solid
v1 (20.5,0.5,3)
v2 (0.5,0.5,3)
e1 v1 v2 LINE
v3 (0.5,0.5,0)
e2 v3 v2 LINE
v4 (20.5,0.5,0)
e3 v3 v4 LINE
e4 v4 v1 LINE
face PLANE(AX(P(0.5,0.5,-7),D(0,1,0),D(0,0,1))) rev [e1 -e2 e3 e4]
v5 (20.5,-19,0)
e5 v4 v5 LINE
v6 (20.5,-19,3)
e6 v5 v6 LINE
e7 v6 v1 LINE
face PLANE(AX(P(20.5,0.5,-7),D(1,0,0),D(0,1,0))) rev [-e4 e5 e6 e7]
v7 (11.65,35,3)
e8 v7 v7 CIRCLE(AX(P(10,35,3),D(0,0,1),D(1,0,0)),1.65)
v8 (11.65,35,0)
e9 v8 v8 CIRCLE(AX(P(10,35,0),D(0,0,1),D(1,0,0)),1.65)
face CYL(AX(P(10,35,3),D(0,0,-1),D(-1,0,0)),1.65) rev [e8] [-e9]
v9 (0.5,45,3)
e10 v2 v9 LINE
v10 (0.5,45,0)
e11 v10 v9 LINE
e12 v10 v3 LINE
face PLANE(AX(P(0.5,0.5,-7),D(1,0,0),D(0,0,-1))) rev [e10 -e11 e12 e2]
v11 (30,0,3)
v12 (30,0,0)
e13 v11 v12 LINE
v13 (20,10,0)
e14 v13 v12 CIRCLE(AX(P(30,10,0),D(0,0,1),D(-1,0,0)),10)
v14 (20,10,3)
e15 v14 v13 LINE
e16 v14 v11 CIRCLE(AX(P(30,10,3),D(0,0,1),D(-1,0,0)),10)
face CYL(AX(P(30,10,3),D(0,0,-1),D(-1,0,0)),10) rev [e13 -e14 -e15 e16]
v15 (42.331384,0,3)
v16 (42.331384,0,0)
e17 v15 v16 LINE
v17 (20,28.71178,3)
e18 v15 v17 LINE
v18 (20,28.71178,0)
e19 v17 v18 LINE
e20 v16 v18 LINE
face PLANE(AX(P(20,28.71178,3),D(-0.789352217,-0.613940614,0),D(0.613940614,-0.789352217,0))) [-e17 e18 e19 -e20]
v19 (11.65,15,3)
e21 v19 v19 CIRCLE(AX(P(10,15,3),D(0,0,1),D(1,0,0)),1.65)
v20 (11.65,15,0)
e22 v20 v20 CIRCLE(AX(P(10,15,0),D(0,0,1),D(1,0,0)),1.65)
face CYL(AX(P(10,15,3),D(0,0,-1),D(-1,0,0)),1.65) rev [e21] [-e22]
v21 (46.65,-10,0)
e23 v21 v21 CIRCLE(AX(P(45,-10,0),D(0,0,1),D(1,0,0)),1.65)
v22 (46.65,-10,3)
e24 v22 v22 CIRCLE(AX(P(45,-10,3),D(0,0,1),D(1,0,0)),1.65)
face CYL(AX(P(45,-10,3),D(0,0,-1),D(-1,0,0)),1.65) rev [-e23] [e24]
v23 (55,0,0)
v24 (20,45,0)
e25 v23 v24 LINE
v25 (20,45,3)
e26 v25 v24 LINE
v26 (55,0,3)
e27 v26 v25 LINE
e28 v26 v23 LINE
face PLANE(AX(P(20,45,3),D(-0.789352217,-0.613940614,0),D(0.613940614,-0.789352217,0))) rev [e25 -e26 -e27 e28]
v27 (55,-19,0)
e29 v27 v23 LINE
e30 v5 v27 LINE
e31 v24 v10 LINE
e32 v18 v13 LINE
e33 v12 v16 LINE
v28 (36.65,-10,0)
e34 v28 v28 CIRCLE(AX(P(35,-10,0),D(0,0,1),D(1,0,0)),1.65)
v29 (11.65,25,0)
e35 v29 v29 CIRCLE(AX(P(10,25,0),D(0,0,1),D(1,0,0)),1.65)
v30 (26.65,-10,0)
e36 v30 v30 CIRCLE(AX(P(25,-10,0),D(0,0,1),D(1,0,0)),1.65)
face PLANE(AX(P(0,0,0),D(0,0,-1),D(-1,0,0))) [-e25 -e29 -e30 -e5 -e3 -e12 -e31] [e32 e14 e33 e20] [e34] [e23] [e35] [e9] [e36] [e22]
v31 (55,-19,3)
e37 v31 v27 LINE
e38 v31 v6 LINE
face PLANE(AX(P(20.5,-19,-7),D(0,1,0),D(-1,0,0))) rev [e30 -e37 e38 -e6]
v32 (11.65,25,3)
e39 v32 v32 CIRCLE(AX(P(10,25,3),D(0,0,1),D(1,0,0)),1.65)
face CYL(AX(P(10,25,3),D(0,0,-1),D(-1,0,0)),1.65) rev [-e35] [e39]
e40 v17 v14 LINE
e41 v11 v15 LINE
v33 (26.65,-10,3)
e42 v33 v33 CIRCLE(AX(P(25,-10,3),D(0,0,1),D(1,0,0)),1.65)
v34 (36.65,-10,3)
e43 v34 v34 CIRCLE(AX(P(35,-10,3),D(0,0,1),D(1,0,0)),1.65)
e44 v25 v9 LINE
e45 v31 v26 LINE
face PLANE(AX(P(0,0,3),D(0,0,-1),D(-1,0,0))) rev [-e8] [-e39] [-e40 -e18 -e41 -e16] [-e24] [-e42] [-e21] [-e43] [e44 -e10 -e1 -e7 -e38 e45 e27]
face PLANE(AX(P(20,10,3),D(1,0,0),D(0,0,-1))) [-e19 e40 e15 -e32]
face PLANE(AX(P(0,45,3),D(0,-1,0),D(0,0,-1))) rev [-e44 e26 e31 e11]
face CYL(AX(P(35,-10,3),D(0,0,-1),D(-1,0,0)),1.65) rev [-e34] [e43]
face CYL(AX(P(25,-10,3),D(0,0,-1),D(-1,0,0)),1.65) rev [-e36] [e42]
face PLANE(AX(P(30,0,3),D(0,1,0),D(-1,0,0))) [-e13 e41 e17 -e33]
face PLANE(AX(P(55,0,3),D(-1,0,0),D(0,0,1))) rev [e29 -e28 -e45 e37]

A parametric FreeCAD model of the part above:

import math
import FreeCAD as App
import Part
import Sketcher
from FreeCAD import Vector

doc = App.newDocument("Part")
body = doc.addObject("PartDesign::Body", "Body")

sketch1 = body.newObject("Sketcher::SketchObject", "Sketch")
sketch1.AttachmentSupport = (doc.getObject("XY_Plane"), [""])
sketch1.MapMode = "FlatFace"
sketch1.addGeometry([
    Part.LineSegment(Vector(0, 0, 0), Vector(20, 0, 0)),
    Part.LineSegment(Vector(20, 0, 0), Vector(20, -20, 0)),
    Part.LineSegment(Vector(20, -20, 0), Vector(55, -20, 0)),
    Part.LineSegment(Vector(55, -20, 0), Vector(55, 0, 0)),
    Part.LineSegment(Vector(55, 0, 0), Vector(20, 45, 0)),
    Part.LineSegment(Vector(20, 45, 0), Vector(0, 45, 0)),
    Part.LineSegment(Vector(0, 45, 0), Vector(0, 0, 0)),
    Part.Circle(Vector(25, -10, 0), Vector(0, 0, 1), 1.6),
    Part.Circle(Vector(35, -10, 0), Vector(0, 0, 1), 1.6),
    Part.Circle(Vector(45, -10, 0), Vector(0, 0, 1), 1.6),
    Part.Circle(Vector(10, 15, 0), Vector(0, 0, 1), 1.6),
    Part.Circle(Vector(10, 25, 0), Vector(0, 0, 1), 1.6),
    Part.Circle(Vector(10, 35, 0), Vector(0, 0, 1), 1.6),
    Part.ArcOfCircle(Part.Circle(Vector(30, 10, 0), Vector(0, 0, 1), 10), math.radians(180), math.radians(270)),
    Part.LineSegment(Vector(20, 10, 0), Vector(20, 28.7, 0)),
    Part.LineSegment(Vector(20, 28.7, 0), Vector(42.3, 0, 0)),
    Part.LineSegment(Vector(42.3, 0, 0), Vector(30, 0, 0)),
], False)
sketch1.addConstraint([
    Sketcher.Constraint("Coincident", 0, 2, 1, 1),
    Sketcher.Constraint("Coincident", 1, 2, 2, 1),
    Sketcher.Constraint("Coincident", 2, 2, 3, 1),
    Sketcher.Constraint("Coincident", 3, 2, 4, 1),
    Sketcher.Constraint("Coincident", 4, 2, 5, 1),
    Sketcher.Constraint("Coincident", 5, 2, 6, 1),
    Sketcher.Constraint("Coincident", 6, 2, 0, 1),
    Sketcher.Constraint("Tangent", 13, 1, 14, 1),
    Sketcher.Constraint("Coincident", 14, 2, 15, 1),
    Sketcher.Constraint("Coincident", 15, 2, 16, 1),
    Sketcher.Constraint("Tangent", 16, 2, 13, 2),
    Sketcher.Constraint("Horizontal", 0),
    Sketcher.Constraint("Vertical", 1),
    Sketcher.Constraint("Horizontal", 2),
    Sketcher.Constraint("Vertical", 3),
    Sketcher.Constraint("Horizontal", 5),
    Sketcher.Constraint("Vertical", 6),
    Sketcher.Constraint("Vertical", 14),
    Sketcher.Constraint("Horizontal", 16),
    Sketcher.Constraint("Coincident", 6, 2, -1, 1),
    Sketcher.Constraint("Equal", 7, 8),
    Sketcher.Constraint("Equal", 8, 9),
    Sketcher.Constraint("Equal", 9, 10),
    Sketcher.Constraint("Equal", 10, 11),
    Sketcher.Constraint("Equal", 11, 12),
    Sketcher.Constraint("PointOnObject", 3, 2, -1),
    Sketcher.Constraint("PointOnObject", 15, 2, -1),
    Sketcher.Constraint("Parallel", 4, 15),
    Sketcher.Constraint("Horizontal", 7, 3, 8, 3),
    Sketcher.Constraint("Horizontal", 8, 3, 9, 3),
    Sketcher.Constraint("Vertical", 10, 3, 11, 3),
    Sketcher.Constraint("Vertical", 11, 3, 12, 3),
    Sketcher.Constraint("Vertical", 1, 2, 4, 2),
    Sketcher.Constraint("Vertical", 4, 2, 13, 1),
    Sketcher.Constraint("Equal", 5, 1),
    Sketcher.Constraint("Radius", 13, 10.0),
    Sketcher.Constraint("Diameter", 7, 3.3),
    Sketcher.Constraint("DistanceX", 0, 1, 0, 2, 20.0),
    Sketcher.Constraint("DistanceX", 2, 1, 2, 2, 35.0),
    Sketcher.Constraint("DistanceY", 6, 2, 6, 1, 45.0),
    Sketcher.Constraint("DistanceX", -1, 1, 7, 3, 25.0),
    Sketcher.Constraint("DistanceY", 7, 3, -1, 1, 10.0),
    Sketcher.Constraint("DistanceX", -1, 1, 8, 3, 35.0),
    Sketcher.Constraint("DistanceX", -1, 1, 9, 3, 45.0),
    Sketcher.Constraint("DistanceX", -1, 1, 10, 3, 10.0),
    Sketcher.Constraint("DistanceY", -1, 1, 10, 3, 15.0),
    Sketcher.Constraint("DistanceY", -1, 1, 11, 3, 25.0),
    Sketcher.Constraint("DistanceY", -1, 1, 12, 3, 35.0),
    Sketcher.Constraint("DistanceY", 14, 1, 14, 2, 18.71178),
])
pad1 = body.newObject("PartDesign::Pad", "Pad")
pad1.Profile = sketch1
pad1.Length = 3

sketch2 = body.newObject("Sketcher::SketchObject", "Sketch001")
sketch2.AttachmentSupport = (doc.getObject("XY_Plane"), [""])
sketch2.MapMode = "FlatFace"
sketch2.AttachmentOffset = App.Placement(Vector(0, 0, 3), App.Rotation())
sketch2.addGeometry([
    Part.LineSegment(Vector(61, -19, 0), Vector(20, -19, 0)),
    Part.LineSegment(Vector(20, -19, 0), Vector(20, 0, 0)),
    Part.LineSegment(Vector(20, 0, 0), Vector(0, 0, 0)),
    Part.LineSegment(Vector(0, 0, 0), Vector(0, 47, 0)),
    Part.LineSegment(Vector(0, 47, 0), Vector(-6, 47, 0)),
    Part.LineSegment(Vector(-6, 47, 0), Vector(0, 0, 0)),
    Part.LineSegment(Vector(0, 0, 0), Vector(17, -24, 0)),
    Part.LineSegment(Vector(17, -24, 0), Vector(61, -25, 0)),
    Part.LineSegment(Vector(61, -25, 0), Vector(61, -19, 0)),
], False)
sketch2.addConstraint([
    Sketcher.Constraint("Coincident", 0, 2, 1, 1),
    Sketcher.Constraint("Coincident", 1, 2, 2, 1),
    Sketcher.Constraint("Coincident", 2, 2, 3, 1),
    Sketcher.Constraint("Coincident", 3, 2, 4, 1),
    Sketcher.Constraint("Coincident", 4, 2, 5, 1),
    Sketcher.Constraint("Coincident", 5, 2, 6, 1),
    Sketcher.Constraint("Coincident", 6, 2, 7, 1),
    Sketcher.Constraint("Coincident", 7, 2, 8, 1),
    Sketcher.Constraint("Coincident", 8, 2, 0, 1),
    Sketcher.Constraint("Horizontal", 0),
    Sketcher.Constraint("Vertical", 1),
    Sketcher.Constraint("Horizontal", 2),
    Sketcher.Constraint("Vertical", 3),
    Sketcher.Constraint("Vertical", 8),
    Sketcher.Constraint("Coincident", 5, 2, -1, 1),
    Sketcher.Constraint("DistanceX", 2, 2, 2, 1, 20.0),
    Sketcher.Constraint("DistanceY", 1, 1, 1, 2, 19.5),
    Sketcher.Constraint("DistanceY", 0, 2, -1, 1, 19.0),
    Sketcher.Constraint("DistanceX", -1, 1, 0, 2, 20.5),
    Sketcher.Constraint("Distance", 4, 6.39607),
    Sketcher.Constraint("Distance", 6, 28.91226),
    Sketcher.Constraint("Distance", 7, 44.851862),
    Sketcher.Constraint("DistanceX", 0, 2, 0, 1, 40.940344),
    Sketcher.Constraint("DistanceY", 3, 1, 3, 2, 46.926626),
    Sketcher.Constraint("DistanceY", 8, 1, 8, 2, 5.760517),
    Sketcher.Constraint("DistanceY", 4, 2, 3, 2, 0.758529),
])
pocket1 = body.newObject("PartDesign::Pocket", "Pocket")
pocket1.Profile = sketch2
pocket1.Length = 10

doc.recompute()
